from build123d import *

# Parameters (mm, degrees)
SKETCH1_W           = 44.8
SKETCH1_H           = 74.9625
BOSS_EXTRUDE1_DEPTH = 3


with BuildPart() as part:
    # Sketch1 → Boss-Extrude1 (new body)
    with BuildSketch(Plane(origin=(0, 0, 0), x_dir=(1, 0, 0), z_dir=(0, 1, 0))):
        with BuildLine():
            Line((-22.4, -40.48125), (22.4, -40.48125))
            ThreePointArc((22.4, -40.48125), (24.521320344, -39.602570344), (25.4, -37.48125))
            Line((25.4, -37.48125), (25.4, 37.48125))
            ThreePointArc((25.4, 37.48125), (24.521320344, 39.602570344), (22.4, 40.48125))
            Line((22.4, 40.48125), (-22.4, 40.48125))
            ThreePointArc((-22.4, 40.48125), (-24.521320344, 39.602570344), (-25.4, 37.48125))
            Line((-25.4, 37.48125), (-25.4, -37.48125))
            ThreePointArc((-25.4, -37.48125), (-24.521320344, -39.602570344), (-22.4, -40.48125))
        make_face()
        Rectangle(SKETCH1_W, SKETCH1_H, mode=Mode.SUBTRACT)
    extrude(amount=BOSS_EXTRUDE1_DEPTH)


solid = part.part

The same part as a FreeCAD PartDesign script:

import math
import FreeCAD as App
import Part
import Sketcher

V = App.Vector
Q = App.Units.Quantity

doc = App.newDocument("Part")
params = doc.addObject("Spreadsheet::Sheet", "Params")
for row, (alias, value) in enumerate([
    ("sketch1_radius", "3 mm"),
    ("sketch1_width", "44.8 mm"),
    ("pad1_length", "3 mm"),
], start=1):
    params.set(f"A{row}", alias)
    params.set(f"B{row}", "=" + value)
    params.setAlias(f"B{row}", alias)

body = doc.addObject("PartDesign::Body", "Body")

# Sketch on XZ plane
sketch1 = body.newObject("Sketcher::SketchObject", "Sketch")
sketch1.AttachmentSupport = (doc.getObject("XZ_Plane"), [""])
sketch1.MapMode = "FlatFace"
sketch1.addGeometry([
    Part.LineSegment(V(-22.4, 40.5, 0), V(22.4, 40.5, 0)),  # 0
    Part.ArcOfCircle(Part.Circle(V(22.4, 37.5, 0), V(0, 0, 1), 3), math.radians(0), math.radians(90)),  # 1
    Part.LineSegment(V(25.4, 37.5, 0), V(25.4, -37.5, 0)),  # 2
    Part.ArcOfCircle(Part.Circle(V(22.4, -37.5, 0), V(0, 0, 1), 3), math.radians(-90), math.radians(0)),  # 3
    Part.LineSegment(V(22.4, -40.5, 0), V(-22.4, -40.5, 0)),  # 4
    Part.ArcOfCircle(Part.Circle(V(-22.4, -37.5, 0), V(0, 0, 1), 3), math.radians(180), math.radians(270)),  # 5
    Part.LineSegment(V(-25.4, -37.5, 0), V(-25.4, 37.5, 0)),  # 6
    Part.ArcOfCircle(Part.Circle(V(-22.4, 37.5, 0), V(0, 0, 1), 3), math.radians(90), math.radians(180)),  # 7
    Part.LineSegment(V(22.4, 37.5, 0), V(-22.4, 37.5, 0)),  # 8
    Part.LineSegment(V(-22.4, 37.5, 0), V(-22.4, -37.5, 0)),  # 9
    Part.LineSegment(V(-22.4, -37.5, 0), V(22.4, -37.5, 0)),  # 10
    Part.LineSegment(V(22.4, -37.5, 0), V(22.4, 37.5, 0)),  # 11
], False)
sketch1.addConstraint([
    Sketcher.Constraint("Tangent", 0, 2, 1, 2),
    Sketcher.Constraint("Tangent", 1, 1, 2, 1),
    Sketcher.Constraint("Tangent", 2, 2, 3, 2),
    Sketcher.Constraint("Tangent", 3, 1, 4, 1),
    Sketcher.Constraint("Tangent", 4, 2, 5, 2),
    Sketcher.Constraint("Tangent", 5, 1, 6, 1),
    Sketcher.Constraint("Tangent", 6, 2, 7, 2),
    Sketcher.Constraint("Tangent", 7, 1, 0, 1),
    Sketcher.Constraint("Coincident", 8, 2, 9, 1),
    Sketcher.Constraint("Coincident", 9, 2, 10, 1),
    Sketcher.Constraint("Coincident", 10, 2, 11, 1),
    Sketcher.Constraint("Coincident", 11, 2, 8, 1),
    Sketcher.Constraint("Horizontal", 0),
    Sketcher.Constraint("Vertical", 2),
    Sketcher.Constraint("Horizontal", 4),
    Sketcher.Constraint("Vertical", 6),
    Sketcher.Constraint("Horizontal", 8),
    Sketcher.Constraint("Vertical", 9),
    Sketcher.Constraint("Horizontal", 10),
    Sketcher.Constraint("Vertical", 11),
    Sketcher.Constraint("Coincident", 8, 2, 7, 3),
    Sketcher.Constraint("Coincident", 9, 2, 5, 3),
    Sketcher.Constraint("Coincident", 10, 2, 3, 3),
    Sketcher.Constraint("Equal", 1, 3),
    Sketcher.Constraint("Symmetric", 1, 3, 5, 3, -1, 1),
    Sketcher.Constraint("Radius", 1, Q("3 mm")),
    Sketcher.Constraint("DistanceX", 0, 1, 0, 2, Q("44.8 mm")),
    Sketcher.Constraint("DistanceY", 2, 2, 2, 1, Q("74.9625 mm")),
])
sketch1.setExpression("Constraints[25]", "Params.sketch1_radius")
sketch1.setExpression("Constraints[26]", "Params.sketch1_width")
pad1 = body.newObject("PartDesign::Pad", "Pad")
pad1.Profile = sketch1
pad1.setExpression("Length", "Params.pad1_length")
pad1.Reversed = True

doc.recompute()
